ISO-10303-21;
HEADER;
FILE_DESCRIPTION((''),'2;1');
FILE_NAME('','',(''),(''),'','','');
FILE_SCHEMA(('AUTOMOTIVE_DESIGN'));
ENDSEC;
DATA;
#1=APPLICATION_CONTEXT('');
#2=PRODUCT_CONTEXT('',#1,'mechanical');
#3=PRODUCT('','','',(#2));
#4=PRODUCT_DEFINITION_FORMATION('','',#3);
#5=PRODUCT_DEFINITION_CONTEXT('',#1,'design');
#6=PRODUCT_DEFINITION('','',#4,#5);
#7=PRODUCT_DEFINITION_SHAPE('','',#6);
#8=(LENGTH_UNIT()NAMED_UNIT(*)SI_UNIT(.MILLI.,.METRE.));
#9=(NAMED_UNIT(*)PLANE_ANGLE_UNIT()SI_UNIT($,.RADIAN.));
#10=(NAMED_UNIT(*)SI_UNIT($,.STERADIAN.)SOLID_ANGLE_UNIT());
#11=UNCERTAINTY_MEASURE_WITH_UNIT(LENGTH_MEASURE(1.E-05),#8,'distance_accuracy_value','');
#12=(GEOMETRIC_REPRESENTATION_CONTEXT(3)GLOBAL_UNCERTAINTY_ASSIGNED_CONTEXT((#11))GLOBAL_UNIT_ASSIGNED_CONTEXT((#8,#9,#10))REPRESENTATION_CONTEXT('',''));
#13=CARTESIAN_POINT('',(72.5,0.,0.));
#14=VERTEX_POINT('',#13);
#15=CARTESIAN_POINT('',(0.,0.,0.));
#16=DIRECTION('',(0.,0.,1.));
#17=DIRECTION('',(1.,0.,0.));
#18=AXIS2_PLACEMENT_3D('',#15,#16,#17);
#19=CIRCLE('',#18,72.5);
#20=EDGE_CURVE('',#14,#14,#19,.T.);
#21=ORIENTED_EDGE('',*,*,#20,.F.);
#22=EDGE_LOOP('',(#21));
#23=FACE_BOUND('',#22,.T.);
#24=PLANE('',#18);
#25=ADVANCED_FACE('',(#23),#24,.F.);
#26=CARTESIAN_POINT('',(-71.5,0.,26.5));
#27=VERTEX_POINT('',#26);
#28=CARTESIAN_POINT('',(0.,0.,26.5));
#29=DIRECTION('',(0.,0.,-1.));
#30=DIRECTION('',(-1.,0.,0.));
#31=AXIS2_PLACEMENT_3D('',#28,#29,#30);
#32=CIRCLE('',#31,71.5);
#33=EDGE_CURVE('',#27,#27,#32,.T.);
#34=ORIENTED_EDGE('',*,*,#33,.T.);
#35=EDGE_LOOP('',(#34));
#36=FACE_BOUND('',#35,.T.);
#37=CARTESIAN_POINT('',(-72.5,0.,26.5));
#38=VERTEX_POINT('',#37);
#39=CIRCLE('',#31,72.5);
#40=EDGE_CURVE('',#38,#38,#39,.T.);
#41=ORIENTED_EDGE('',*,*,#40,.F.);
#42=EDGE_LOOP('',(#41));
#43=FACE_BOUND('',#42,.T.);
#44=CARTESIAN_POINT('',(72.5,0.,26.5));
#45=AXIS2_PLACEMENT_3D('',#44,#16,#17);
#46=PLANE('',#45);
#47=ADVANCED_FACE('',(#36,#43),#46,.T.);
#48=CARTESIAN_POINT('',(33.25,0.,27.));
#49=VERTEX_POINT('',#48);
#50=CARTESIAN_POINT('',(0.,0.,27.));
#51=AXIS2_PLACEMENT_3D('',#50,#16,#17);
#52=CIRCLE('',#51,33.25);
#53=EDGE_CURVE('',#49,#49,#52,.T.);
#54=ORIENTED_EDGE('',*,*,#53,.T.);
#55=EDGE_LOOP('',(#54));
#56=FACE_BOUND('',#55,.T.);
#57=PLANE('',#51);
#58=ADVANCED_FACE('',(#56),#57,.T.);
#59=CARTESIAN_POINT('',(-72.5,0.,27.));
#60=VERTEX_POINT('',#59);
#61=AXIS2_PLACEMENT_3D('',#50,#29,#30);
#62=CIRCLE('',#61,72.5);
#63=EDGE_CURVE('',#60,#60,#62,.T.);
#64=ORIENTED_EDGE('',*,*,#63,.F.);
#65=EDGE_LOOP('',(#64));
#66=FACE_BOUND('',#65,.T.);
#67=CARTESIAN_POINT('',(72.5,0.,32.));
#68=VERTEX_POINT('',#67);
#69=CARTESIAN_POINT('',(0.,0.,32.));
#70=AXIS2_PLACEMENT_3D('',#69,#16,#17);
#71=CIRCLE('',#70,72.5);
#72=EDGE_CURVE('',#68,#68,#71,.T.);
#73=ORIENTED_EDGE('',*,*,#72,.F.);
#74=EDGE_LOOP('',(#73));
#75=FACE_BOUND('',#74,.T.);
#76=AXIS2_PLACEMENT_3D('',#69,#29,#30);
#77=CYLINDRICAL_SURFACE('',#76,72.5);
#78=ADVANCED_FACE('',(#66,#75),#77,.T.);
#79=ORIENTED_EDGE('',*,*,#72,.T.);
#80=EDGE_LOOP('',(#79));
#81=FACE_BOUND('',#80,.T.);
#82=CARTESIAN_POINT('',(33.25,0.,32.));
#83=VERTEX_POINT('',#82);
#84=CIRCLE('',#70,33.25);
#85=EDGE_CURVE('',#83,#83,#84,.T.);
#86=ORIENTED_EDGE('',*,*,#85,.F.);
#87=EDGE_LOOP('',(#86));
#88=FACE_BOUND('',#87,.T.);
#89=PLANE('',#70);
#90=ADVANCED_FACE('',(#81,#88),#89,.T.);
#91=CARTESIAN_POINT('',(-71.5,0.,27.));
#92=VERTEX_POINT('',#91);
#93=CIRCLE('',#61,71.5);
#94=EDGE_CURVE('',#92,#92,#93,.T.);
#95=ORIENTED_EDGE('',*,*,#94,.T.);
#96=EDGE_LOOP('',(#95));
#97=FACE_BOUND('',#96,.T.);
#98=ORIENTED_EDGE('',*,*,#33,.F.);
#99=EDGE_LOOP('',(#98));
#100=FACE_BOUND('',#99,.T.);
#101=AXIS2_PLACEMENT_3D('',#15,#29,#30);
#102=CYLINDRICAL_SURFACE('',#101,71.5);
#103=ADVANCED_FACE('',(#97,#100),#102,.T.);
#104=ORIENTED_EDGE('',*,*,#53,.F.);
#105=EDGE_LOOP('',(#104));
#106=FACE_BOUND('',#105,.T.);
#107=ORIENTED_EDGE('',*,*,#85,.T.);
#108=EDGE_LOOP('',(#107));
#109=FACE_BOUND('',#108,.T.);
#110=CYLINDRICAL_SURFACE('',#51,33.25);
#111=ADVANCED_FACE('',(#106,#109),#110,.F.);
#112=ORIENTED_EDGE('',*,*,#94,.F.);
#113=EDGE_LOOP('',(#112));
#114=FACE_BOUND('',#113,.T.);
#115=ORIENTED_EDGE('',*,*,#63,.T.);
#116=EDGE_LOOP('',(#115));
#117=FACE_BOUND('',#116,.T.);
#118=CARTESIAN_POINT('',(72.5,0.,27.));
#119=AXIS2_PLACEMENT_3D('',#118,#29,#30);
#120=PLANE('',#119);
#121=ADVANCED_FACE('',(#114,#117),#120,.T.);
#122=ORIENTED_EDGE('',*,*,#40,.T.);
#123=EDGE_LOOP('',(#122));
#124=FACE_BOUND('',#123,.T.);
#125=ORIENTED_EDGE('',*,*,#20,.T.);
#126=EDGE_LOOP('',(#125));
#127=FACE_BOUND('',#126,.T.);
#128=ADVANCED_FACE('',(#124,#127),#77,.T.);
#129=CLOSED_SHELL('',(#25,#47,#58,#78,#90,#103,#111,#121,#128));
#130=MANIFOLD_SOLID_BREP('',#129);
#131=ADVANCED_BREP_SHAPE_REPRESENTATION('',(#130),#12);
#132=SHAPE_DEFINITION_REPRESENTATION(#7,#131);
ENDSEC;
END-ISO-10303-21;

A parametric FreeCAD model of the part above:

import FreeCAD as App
import Part
import Sketcher
from FreeCAD import Vector

doc = App.newDocument("Part")
body = doc.addObject("PartDesign::Body", "Body")

sketch1 = body.newObject("Sketcher::SketchObject", "Sketch")
sketch1.AttachmentSupport = (doc.getObject("XY_Plane"), [""])
sketch1.MapMode = "FlatFace"
sketch1.addGeometry(Part.Circle(Vector(0, 0, 0), Vector(0, 0, 1), 72), False)
sketch1.addConstraint([
    Sketcher.Constraint("Coincident", 0, 3, -1, 1),
    Sketcher.Constraint("Diameter", 0, 145.0),
])
pad1 = body.newObject("PartDesign::Pad", "Pad")
pad1.Profile = sketch1
pad1.Length = 32

sketch2 = body.newObject("Sketcher::SketchObject", "Sketch001")
sketch2.AttachmentSupport = (doc.getObject("XZ_Plane"), [""])
sketch2.MapMode = "FlatFace"
sketch2.addGeometry([
    Part.LineSegment(Vector(71.5, 26.5, 0), Vector(71.5, 27, 0)),
    Part.LineSegment(Vector(71.5, 27, 0), Vector(72.5, 27, 0)),
    Part.LineSegment(Vector(72.5, 27, 0), Vector(72.5, 26.5, 0)),
    Part.LineSegment(Vector(72.5, 26.5, 0), Vector(71.5, 26.5, 0)),
], False)
sketch2.addConstraint([
    Sketcher.Constraint("Coincident", 0, 2, 1, 1),
    Sketcher.Constraint("Coincident", 1, 2, 2, 1),
    Sketcher.Constraint("Coincident", 2, 2, 3, 1),
    Sketcher.Constraint("Coincident", 3, 2, 0, 1),
    Sketcher.Constraint("Vertical", 0),
    Sketcher.Constraint("Horizontal", 1),
    Sketcher.Constraint("Vertical", 2),
    Sketcher.Constraint("Horizontal", 3),
    Sketcher.Constraint("DistanceX", 1, 1, 1, 2, 1.0),
    Sketcher.Constraint("DistanceY", 0, 1, 0, 2, 0.5),
    Sketcher.Constraint("DistanceY", -1, 1, 0, 2, 27.0),
    Sketcher.Constraint("DistanceX", -1, 1, 0, 2, 71.5),
])
groove = body.newObject("PartDesign::Groove", "Groove")
groove.Profile = sketch2
groove.ReferenceAxis = (sketch2, ["V_Axis"])
groove.Angle = 360

sketch3 = body.newObject("Sketcher::SketchObject", "Sketch002")
sketch3.AttachmentSupport = (doc.getObject("XY_Plane"), [""])
sketch3.MapMode = "FlatFace"
sketch3.AttachmentOffset = App.Placement(Vector(0, 0, 32), App.Rotation())
sketch3.addGeometry(Part.Circle(Vector(0, 0, 0), Vector(0, 0, 1), 33), False)
sketch3.addConstraint([
    Sketcher.Constraint("Coincident", 0, 3, -1, 1),
    Sketcher.Constraint("Diameter", 0, 66.5),
])
pocket1 = body.newObject("PartDesign::Pocket", "Pocket")
pocket1.Profile = sketch3
pocket1.Length = 5

doc.recompute()
